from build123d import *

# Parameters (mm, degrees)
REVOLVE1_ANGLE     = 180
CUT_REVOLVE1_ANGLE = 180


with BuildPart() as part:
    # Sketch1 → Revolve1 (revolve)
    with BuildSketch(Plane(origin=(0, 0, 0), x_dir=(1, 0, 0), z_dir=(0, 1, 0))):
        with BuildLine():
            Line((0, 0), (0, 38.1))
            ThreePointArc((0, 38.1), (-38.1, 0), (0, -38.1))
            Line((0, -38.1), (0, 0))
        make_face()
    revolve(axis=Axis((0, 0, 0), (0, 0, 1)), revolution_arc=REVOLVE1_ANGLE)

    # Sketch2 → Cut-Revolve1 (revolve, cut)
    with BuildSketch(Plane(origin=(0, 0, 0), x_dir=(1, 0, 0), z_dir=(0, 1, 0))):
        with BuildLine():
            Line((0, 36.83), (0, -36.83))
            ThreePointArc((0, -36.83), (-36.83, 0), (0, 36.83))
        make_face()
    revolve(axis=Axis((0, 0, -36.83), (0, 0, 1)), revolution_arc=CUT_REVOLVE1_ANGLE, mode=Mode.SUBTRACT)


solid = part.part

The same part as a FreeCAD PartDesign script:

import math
import FreeCAD as App
import Part
import Sketcher

V = App.Vector
Q = App.Units.Quantity

doc = App.newDocument("Part")
body = doc.addObject("PartDesign::Body", "Body")

sketch1 = doc.addObject("Sketcher::SketchObject", "Sketch")
body.addObject(sketch1)
sketch1.AttachmentSupport = (doc.XZ_Plane, [""])
sketch1.MapMode = "FlatFace"
sketch1.addGeometry(Part.ArcOfCircle(Part.Circle(V(0, 0, 0), V(0, 0, 1), 38), math.radians(90), math.radians(270)), False)
sketch1.addGeometry(Part.LineSegment(V(0, 38, 0), V(0, -38, 0)), False)
sketch1.addConstraint(Sketcher.Constraint("Coincident", 0, 1, 1, 1))
sketch1.addConstraint(Sketcher.Constraint("Coincident", 1, 2, 0, 2))
sketch1.addConstraint(Sketcher.Constraint("Vertical", 1))
sketch1.addConstraint(Sketcher.Constraint("Coincident", 0, 3, -1, 1))
sketch1.addConstraint(Sketcher.Constraint("PointOnObject", 0, 1, -2))
sketch1.addConstraint(Sketcher.Constraint("Radius", 0, Q("1.5 in")))
revolution = doc.addObject("PartDesign::Revolution", "Revolution")
body.addObject(revolution)
revolution.Profile = sketch1
revolution.ReferenceAxis = (sketch1, ["V_Axis"])
revolution.Angle = 180

sketch2 = doc.addObject("Sketcher::SketchObject", "Sketch001")
body.addObject(sketch2)
sketch2.AttachmentSupport = (doc.XZ_Plane, [""])
sketch2.MapMode = "FlatFace"
sketch2.addGeometry(Part.LineSegment(V(0, 37, 0), V(0, -37, 0)), False)
sketch2.addGeometry(Part.ArcOfCircle(Part.Circle(V(0, 0, 0), V(0, 0, 1), 37), math.radians(90), math.radians(270)), False)
sketch2.addConstraint(Sketcher.Constraint("Coincident", 0, 1, 1, 1))
sketch2.addConstraint(Sketcher.Constraint("Coincident", 1, 2, 0, 2))
sketch2.addConstraint(Sketcher.Constraint("Vertical", 0))
sketch2.addConstraint(Sketcher.Constraint("Coincident", 1, 3, -1, 1))
sketch2.addConstraint(Sketcher.Constraint("PointOnObject", 0, 1, -2))
sketch2.addConstraint(Sketcher.Constraint("Radius", 1, Q("1.45 in")))
groove = doc.addObject("PartDesign::Groove", "Groove")
body.addObject(groove)
groove.Profile = sketch2
groove.ReferenceAxis = (sketch2, ["V_Axis"])
groove.Angle = 180

doc.recompute()
